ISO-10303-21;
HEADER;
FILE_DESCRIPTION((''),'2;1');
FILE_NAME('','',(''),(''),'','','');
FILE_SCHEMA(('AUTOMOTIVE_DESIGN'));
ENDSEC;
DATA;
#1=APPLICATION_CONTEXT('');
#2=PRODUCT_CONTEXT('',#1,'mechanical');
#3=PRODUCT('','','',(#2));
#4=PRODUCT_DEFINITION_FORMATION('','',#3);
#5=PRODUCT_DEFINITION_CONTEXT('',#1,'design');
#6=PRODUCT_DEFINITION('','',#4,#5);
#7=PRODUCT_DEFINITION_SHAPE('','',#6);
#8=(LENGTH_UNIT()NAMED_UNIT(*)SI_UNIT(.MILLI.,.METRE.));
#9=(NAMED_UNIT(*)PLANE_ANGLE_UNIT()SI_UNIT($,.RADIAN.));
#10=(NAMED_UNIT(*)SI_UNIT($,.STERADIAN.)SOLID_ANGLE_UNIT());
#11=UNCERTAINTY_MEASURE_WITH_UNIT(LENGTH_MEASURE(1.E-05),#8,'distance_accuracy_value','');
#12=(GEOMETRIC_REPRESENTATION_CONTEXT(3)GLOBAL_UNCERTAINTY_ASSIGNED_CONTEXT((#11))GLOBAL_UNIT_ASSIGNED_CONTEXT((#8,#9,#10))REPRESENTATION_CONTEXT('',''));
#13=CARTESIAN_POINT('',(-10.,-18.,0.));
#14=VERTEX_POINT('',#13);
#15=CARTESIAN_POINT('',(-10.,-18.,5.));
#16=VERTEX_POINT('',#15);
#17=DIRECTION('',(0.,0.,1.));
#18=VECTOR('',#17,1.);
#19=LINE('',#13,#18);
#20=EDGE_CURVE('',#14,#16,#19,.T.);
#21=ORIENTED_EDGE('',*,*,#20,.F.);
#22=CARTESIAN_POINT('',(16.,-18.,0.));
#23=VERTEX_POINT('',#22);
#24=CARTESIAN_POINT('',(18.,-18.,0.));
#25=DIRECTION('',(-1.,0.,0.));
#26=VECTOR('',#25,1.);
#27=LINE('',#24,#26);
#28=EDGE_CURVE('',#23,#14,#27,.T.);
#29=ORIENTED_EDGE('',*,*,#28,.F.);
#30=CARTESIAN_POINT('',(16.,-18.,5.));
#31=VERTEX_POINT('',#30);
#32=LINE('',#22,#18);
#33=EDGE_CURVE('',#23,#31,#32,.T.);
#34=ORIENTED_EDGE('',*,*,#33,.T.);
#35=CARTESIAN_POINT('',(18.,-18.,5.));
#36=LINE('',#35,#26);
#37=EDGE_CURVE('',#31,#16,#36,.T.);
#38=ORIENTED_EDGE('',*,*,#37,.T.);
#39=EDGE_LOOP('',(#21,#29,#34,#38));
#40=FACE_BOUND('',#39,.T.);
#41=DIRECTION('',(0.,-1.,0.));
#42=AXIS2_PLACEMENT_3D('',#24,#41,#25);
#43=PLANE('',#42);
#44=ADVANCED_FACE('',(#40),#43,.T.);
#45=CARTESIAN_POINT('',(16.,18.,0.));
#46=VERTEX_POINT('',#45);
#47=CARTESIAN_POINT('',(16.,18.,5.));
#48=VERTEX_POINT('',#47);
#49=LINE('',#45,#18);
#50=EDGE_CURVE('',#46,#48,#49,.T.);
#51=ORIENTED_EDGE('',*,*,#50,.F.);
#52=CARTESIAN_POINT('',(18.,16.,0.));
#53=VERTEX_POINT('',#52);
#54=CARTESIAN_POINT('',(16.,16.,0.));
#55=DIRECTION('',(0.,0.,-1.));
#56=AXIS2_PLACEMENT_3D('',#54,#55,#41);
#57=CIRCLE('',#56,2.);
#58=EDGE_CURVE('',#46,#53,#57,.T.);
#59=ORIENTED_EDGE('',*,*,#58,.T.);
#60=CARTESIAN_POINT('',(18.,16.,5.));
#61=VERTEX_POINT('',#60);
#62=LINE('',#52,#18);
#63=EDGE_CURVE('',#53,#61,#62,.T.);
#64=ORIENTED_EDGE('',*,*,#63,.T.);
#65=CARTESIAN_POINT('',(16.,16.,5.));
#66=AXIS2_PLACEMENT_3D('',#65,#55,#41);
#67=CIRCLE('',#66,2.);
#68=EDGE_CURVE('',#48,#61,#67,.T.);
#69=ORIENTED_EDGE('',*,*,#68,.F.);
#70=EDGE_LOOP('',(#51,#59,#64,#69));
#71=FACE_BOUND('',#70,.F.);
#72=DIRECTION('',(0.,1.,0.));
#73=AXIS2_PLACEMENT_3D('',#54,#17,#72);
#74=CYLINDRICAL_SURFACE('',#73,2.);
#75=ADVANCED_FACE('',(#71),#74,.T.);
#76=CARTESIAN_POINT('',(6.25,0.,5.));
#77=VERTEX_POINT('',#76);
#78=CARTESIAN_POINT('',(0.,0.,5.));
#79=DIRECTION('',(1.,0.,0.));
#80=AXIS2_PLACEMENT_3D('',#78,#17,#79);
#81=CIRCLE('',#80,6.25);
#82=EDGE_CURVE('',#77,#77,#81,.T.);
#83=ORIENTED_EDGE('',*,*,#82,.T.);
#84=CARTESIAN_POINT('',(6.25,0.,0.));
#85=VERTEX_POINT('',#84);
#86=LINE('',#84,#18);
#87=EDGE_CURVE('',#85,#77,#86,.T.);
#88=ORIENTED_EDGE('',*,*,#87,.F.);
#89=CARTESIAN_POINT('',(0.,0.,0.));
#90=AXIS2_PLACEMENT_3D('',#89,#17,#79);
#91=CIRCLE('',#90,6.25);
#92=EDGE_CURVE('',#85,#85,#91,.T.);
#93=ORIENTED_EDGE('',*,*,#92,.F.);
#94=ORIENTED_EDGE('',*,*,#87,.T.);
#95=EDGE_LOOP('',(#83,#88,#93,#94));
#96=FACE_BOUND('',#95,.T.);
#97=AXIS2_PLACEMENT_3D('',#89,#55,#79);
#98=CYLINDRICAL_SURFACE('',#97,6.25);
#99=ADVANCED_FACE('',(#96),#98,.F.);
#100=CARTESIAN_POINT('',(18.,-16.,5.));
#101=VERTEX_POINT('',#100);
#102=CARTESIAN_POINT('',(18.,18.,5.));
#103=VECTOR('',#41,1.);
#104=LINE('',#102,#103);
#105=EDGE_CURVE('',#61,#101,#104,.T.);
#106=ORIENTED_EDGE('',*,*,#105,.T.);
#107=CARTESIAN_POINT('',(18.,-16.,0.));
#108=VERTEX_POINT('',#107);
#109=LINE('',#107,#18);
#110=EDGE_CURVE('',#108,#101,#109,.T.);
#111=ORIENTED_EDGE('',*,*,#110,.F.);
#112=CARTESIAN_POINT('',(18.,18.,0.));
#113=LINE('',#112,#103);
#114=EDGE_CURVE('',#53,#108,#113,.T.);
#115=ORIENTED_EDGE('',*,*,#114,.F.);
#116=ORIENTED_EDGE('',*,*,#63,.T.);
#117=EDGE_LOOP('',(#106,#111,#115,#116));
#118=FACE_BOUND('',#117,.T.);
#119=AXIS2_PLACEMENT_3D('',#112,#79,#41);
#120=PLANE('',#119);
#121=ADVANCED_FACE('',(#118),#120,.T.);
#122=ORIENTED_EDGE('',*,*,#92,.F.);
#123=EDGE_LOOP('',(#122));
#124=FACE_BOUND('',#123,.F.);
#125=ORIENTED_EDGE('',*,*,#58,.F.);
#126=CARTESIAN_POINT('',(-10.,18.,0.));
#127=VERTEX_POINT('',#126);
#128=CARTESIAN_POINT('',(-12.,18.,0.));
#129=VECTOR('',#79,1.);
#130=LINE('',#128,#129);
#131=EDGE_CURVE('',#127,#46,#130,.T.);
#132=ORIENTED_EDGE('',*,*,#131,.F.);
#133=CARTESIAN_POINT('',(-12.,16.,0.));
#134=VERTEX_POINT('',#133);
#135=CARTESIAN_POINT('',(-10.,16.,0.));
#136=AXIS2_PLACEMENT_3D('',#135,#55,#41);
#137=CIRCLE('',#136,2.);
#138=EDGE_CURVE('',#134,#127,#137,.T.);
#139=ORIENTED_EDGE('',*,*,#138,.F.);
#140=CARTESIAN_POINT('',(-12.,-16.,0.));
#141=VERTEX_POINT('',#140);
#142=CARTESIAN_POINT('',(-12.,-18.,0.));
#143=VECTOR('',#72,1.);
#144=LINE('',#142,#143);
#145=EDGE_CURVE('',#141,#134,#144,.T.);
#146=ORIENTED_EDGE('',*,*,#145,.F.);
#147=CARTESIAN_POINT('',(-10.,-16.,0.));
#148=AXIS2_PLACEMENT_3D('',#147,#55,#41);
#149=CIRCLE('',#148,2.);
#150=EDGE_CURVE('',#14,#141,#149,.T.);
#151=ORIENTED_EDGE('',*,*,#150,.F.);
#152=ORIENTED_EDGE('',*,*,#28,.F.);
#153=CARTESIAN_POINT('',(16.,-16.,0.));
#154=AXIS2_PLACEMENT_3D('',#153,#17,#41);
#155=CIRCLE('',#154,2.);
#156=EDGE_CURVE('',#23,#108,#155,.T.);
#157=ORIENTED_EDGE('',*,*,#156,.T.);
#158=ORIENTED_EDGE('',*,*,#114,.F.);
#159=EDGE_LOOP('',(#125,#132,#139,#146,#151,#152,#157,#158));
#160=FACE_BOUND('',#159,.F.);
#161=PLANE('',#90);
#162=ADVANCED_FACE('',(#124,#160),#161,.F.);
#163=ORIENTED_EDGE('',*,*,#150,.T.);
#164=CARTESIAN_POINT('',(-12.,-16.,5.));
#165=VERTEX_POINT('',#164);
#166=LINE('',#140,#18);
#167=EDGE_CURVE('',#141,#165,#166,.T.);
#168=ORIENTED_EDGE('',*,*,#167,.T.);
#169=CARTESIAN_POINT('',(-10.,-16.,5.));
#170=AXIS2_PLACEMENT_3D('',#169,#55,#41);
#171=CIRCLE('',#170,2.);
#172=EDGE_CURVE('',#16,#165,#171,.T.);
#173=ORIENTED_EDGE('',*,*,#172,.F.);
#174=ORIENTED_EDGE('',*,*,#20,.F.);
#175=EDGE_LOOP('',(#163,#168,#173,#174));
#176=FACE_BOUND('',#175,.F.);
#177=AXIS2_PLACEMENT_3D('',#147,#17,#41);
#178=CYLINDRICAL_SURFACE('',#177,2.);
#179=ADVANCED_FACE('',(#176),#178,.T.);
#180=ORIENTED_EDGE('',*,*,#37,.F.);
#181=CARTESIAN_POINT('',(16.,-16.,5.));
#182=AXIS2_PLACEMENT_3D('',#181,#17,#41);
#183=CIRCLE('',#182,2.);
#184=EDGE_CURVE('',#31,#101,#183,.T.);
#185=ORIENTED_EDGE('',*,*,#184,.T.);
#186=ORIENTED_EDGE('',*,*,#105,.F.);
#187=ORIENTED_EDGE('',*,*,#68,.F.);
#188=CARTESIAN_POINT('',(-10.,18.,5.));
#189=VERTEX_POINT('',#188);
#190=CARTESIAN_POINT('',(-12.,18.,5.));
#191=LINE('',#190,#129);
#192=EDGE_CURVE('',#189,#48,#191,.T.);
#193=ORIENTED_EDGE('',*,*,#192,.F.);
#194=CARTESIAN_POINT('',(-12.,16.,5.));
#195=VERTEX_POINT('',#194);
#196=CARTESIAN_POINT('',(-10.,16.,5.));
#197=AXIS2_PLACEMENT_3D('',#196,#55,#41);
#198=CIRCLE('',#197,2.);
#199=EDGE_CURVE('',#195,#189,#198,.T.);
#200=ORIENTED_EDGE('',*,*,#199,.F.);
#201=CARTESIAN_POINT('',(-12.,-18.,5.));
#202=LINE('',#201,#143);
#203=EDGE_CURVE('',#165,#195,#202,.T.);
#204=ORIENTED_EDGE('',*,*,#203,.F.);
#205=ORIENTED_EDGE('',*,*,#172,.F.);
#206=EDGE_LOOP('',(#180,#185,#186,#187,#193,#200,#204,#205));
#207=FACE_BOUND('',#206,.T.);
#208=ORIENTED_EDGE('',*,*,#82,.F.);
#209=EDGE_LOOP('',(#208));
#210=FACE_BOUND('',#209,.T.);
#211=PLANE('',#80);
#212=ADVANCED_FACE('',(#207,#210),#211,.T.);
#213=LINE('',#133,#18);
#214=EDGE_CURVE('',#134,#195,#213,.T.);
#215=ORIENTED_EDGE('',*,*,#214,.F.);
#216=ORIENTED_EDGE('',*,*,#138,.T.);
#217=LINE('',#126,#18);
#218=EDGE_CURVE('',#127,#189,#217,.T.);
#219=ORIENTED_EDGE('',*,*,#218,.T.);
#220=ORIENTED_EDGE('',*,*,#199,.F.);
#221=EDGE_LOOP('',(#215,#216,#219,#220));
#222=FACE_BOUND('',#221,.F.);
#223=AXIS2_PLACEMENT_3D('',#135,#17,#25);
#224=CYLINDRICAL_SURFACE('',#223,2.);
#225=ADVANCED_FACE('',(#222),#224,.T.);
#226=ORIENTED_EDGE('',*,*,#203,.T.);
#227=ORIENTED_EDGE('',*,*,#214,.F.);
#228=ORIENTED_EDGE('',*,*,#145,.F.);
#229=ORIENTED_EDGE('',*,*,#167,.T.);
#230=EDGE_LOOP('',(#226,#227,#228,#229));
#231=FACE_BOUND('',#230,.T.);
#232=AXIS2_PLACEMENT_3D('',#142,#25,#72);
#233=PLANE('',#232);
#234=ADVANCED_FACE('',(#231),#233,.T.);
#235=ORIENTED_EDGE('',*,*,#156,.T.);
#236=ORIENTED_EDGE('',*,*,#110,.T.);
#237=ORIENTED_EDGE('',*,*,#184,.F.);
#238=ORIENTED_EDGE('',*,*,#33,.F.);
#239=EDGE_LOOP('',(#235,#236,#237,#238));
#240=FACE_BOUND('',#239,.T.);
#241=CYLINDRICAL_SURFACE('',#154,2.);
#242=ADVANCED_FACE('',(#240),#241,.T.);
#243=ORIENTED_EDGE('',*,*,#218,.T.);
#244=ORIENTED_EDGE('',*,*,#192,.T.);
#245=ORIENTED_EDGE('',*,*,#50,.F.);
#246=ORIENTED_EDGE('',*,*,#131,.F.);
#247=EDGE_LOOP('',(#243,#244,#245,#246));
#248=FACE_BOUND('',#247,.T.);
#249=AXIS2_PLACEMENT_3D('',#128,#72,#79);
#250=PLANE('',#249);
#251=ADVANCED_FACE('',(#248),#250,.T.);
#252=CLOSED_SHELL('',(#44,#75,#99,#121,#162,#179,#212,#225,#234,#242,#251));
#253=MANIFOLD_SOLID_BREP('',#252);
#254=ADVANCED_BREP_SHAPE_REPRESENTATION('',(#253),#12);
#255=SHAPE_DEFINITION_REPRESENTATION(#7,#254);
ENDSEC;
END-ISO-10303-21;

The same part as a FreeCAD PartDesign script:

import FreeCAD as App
import Part
import Sketcher

V = App.Vector
Q = App.Units.Quantity


def edges_at(feature, points):
    """Names of the edges that pass closest to the given points."""
    edges = feature.Shape.Edges
    near = lambda p: min(range(len(edges)), key=lambda i: edges[i].distToShape(Part.Vertex(*p))[0])
    return sorted({f"Edge{near(p) + 1}" for p in points})

doc = App.newDocument("Part")
body = doc.addObject("PartDesign::Body", "Body")

# Sketch on XY plane
sketch1 = body.newObject("Sketcher::SketchObject", "Sketch")
sketch1.AttachmentSupport = (doc.getObject("XY_Plane"), [""])
sketch1.MapMode = "FlatFace"
sketch1.addGeometry([
    Part.LineSegment(V(-12, -18, 0), V(18, -18, 0)),  # 0
    Part.LineSegment(V(18, -18, 0), V(18, 18, 0)),  # 1
    Part.LineSegment(V(18, 18, 0), V(-12, 18, 0)),  # 2
    Part.LineSegment(V(-12, 18, 0), V(-12, -18, 0)),  # 3
    Part.Circle(V(0, 0, 0), V(0, 0, 1), 6),  # 4
], False)
sketch1.addConstraint([
    Sketcher.Constraint("Coincident", 0, 2, 1, 1),
    Sketcher.Constraint("Coincident", 1, 2, 2, 1),
    Sketcher.Constraint("Coincident", 2, 2, 3, 1),
    Sketcher.Constraint("Coincident", 3, 2, 0, 1),
    Sketcher.Constraint("Horizontal", 0),
    Sketcher.Constraint("Vertical", 1),
    Sketcher.Constraint("Horizontal", 2),
    Sketcher.Constraint("Vertical", 3),
    Sketcher.Constraint("Coincident", 4, 3, -1, 1),
    Sketcher.Constraint("Diameter", 4, Q("12.5 mm")),
    Sketcher.Constraint("DistanceX", 0, 1, 0, 2, Q("30 mm")),
    Sketcher.Constraint("DistanceY", 1, 1, 1, 2, Q("36 mm")),
    Sketcher.Constraint("DistanceX", -1, 1, 0, 2, Q("18 mm")),
    Sketcher.Constraint("DistanceY", 0, 2, -1, 1, Q("18 mm")),
])
pad1 = body.newObject("PartDesign::Pad", "Pad")
pad1.Profile = sketch1
pad1.Length = 5
doc.recompute()

fillet = body.newObject("PartDesign::Fillet", "Fillet")
fillet.Base = (pad1, edges_at(pad1, [
    (-12, -18, 2.5),
    (-12, 18, 2.5),
    (18, 18, 2.5),
    (18, -18, 2.5),
]))
fillet.Radius = 2

doc.recompute()
